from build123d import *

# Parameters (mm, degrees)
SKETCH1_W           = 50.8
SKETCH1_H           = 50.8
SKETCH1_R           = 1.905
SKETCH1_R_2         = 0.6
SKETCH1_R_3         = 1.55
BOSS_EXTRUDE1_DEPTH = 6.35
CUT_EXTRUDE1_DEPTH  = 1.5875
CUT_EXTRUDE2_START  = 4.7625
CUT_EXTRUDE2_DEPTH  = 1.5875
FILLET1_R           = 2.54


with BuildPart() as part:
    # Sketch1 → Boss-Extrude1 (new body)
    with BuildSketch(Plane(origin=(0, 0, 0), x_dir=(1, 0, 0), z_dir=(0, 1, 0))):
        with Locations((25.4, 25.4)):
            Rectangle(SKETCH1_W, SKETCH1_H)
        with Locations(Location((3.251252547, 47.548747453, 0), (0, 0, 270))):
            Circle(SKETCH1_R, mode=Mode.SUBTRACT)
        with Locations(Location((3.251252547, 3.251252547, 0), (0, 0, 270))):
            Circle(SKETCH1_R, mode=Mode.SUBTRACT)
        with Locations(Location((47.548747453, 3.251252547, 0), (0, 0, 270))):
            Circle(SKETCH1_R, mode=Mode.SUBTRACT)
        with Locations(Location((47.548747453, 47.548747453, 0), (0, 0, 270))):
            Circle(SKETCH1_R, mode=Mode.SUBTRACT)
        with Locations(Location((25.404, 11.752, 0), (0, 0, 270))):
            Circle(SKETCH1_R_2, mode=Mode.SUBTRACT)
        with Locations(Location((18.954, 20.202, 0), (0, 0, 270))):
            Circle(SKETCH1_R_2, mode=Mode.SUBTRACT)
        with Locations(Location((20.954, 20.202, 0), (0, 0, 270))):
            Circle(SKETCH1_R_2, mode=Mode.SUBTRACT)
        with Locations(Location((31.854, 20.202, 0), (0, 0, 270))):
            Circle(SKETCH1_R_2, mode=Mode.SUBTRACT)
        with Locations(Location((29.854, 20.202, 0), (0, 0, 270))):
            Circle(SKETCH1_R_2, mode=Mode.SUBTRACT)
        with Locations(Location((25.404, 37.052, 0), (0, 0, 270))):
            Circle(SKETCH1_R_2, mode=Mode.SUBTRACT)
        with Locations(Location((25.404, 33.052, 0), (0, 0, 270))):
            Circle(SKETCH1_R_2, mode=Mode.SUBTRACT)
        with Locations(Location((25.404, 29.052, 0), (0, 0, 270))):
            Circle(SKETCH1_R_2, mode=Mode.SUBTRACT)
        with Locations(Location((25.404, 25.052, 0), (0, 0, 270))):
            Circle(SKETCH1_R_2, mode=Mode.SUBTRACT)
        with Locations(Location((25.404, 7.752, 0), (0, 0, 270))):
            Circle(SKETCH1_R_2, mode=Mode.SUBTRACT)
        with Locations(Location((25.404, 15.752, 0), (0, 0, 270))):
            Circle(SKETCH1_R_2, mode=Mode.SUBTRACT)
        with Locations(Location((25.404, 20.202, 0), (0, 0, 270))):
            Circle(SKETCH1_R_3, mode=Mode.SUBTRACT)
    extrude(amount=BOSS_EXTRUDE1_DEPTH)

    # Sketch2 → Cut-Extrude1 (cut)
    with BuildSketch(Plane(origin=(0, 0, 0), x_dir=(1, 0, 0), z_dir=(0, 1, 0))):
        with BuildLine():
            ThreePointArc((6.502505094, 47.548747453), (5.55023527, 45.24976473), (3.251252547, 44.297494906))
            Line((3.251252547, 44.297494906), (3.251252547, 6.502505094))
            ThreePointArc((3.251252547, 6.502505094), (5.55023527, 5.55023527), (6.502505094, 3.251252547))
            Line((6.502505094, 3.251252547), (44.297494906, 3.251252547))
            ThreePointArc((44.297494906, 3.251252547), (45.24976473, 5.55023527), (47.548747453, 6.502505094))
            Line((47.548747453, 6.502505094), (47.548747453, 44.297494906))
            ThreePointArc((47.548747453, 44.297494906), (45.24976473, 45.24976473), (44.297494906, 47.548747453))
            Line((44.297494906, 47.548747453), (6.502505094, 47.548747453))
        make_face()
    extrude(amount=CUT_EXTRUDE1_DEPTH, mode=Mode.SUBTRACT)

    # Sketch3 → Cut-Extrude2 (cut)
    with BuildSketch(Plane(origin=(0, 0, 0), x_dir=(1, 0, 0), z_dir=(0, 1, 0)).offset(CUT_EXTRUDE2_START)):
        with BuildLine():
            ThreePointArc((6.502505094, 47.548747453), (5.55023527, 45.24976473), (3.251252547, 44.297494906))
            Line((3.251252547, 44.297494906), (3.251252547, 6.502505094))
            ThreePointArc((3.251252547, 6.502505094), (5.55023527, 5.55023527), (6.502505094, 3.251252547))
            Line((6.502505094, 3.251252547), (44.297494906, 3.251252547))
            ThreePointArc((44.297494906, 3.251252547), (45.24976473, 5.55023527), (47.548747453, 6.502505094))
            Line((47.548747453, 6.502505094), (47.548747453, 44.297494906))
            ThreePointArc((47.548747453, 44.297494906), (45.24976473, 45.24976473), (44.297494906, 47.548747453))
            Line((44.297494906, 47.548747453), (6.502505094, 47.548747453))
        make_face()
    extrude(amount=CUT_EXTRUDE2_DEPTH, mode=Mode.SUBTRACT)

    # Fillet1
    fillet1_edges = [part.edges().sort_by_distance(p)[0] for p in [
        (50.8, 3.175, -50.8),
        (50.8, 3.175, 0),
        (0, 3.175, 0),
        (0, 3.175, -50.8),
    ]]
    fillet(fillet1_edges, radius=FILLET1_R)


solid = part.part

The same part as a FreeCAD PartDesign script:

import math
import FreeCAD as App
import Part
import Sketcher
Q = App.Units.Quantity


def edges_at(feature, points):
    """Names of the edges that pass closest to the given points."""
    edges = feature.Shape.Edges
    near = lambda p: min(range(len(edges)), key=lambda i: edges[i].distToShape(Part.Vertex(*p))[0])
    return sorted({f"Edge{near(p) + 1}" for p in points})


def add_polygon(sketch, points):
    """Adds a closed chain of lines whose ends are joined by coincident constraints."""
    first, n = sketch.GeometryCount, len(points)
    for a, b in zip(points, points[1:] + points[:1]):
        sketch.addGeometry(Part.LineSegment(App.Vector(*a, 0), App.Vector(*b, 0)), False)
    for i in range(n):
        sketch.addConstraint(Sketcher.Constraint("Coincident", first + i, 2, first + (i + 1) % n, 1))

doc = App.newDocument("Part")
body = doc.addObject("PartDesign::Body", "Body")

# Sketch on XZ plane
sketch1 = doc.addObject("Sketcher::SketchObject", "Sketch")
body.addObject(sketch1)
sketch1.AttachmentSupport = (doc.XZ_Plane, [""])
sketch1.MapMode = "FlatFace"
add_polygon(sketch1, [(0, -50.8), (0, 0), (50.8, 0), (50.8, -50.8)])  # lines 0-3
sketch1.addGeometry(Part.Circle(App.Vector(3.3, -3.3, 0), App.Vector(0, 0, 1), 1.9), False)  # 4
sketch1.addGeometry(Part.Circle(App.Vector(19, -20.2, 0), App.Vector(0, 0, 1), 0.6), False)  # 5
sketch1.addGeometry(Part.Circle(App.Vector(21, -20.2, 0), App.Vector(0, 0, 1), 0.6), False)  # 6
sketch1.addGeometry(Part.Circle(App.Vector(25.4, -7.8, 0), App.Vector(0, 0, 1), 0.6), False)  # 7
sketch1.addGeometry(Part.Circle(App.Vector(25.4, -11.8, 0), App.Vector(0, 0, 1), 0.6), False)  # 8
sketch1.addGeometry(Part.Circle(App.Vector(47.5, -3.3, 0), App.Vector(0, 0, 1), 1.9), False)  # 9
sketch1.addGeometry(Part.Circle(App.Vector(25.4, -15.8, 0), App.Vector(0, 0, 1), 0.6), False)  # 10
sketch1.addGeometry(Part.Circle(App.Vector(25.4, -20.2, 0), App.Vector(0, 0, 1), 1.6), False)  # 11
sketch1.addGeometry(Part.Circle(App.Vector(29.9, -20.2, 0), App.Vector(0, 0, 1), 0.6), False)  # 12
sketch1.addGeometry(Part.Circle(App.Vector(25.4, -25.1, 0), App.Vector(0, 0, 1), 0.6), False)  # 13
sketch1.addGeometry(Part.Circle(App.Vector(31.9, -20.2, 0), App.Vector(0, 0, 1), 0.6), False)  # 14
sketch1.addGeometry(Part.Circle(App.Vector(3.3, -47.5, 0), App.Vector(0, 0, 1), 1.9), False)  # 15
sketch1.addGeometry(Part.Circle(App.Vector(25.4, -29.1, 0), App.Vector(0, 0, 1), 0.6), False)  # 16
sketch1.addGeometry(Part.Circle(App.Vector(25.4, -33.1, 0), App.Vector(0, 0, 1), 0.6), False)  # 17
sketch1.addGeometry(Part.Circle(App.Vector(25.4, -37.1, 0), App.Vector(0, 0, 1), 0.6), False)  # 18
sketch1.addGeometry(Part.Circle(App.Vector(47.5, -47.5, 0), App.Vector(0, 0, 1), 1.9), False)  # 19
sketch1.addConstraint(Sketcher.Constraint("Vertical", 0))
sketch1.addConstraint(Sketcher.Constraint("Horizontal", 1))
sketch1.addConstraint(Sketcher.Constraint("Vertical", 2))
sketch1.addConstraint(Sketcher.Constraint("Horizontal", 3))
sketch1.addConstraint(Sketcher.Constraint("Coincident", 0, 2, -1, 1))
sketch1.addConstraint(Sketcher.Constraint("Equal", 5, 6))
sketch1.addConstraint(Sketcher.Constraint("Equal", 6, 7))
sketch1.addConstraint(Sketcher.Constraint("Equal", 7, 8))
sketch1.addConstraint(Sketcher.Constraint("Equal", 4, 9))
sketch1.addConstraint(Sketcher.Constraint("Equal", 8, 10))
sketch1.addConstraint(Sketcher.Constraint("Equal", 10, 12))
sketch1.addConstraint(Sketcher.Constraint("Equal", 12, 13))
sketch1.addConstraint(Sketcher.Constraint("Equal", 13, 14))
sketch1.addConstraint(Sketcher.Constraint("Equal", 9, 15))
sketch1.addConstraint(Sketcher.Constraint("Equal", 14, 16))
sketch1.addConstraint(Sketcher.Constraint("Equal", 16, 17))
sketch1.addConstraint(Sketcher.Constraint("Equal", 17, 18))
sketch1.addConstraint(Sketcher.Constraint("Equal", 15, 19))
sketch1.addConstraint(Sketcher.Constraint("Horizontal", 5, 3, 6, 3))
sketch1.addConstraint(Sketcher.Constraint("Horizontal", 4, 3, 9, 3))
sketch1.addConstraint(Sketcher.Constraint("Horizontal", 6, 3, 11, 3))
sketch1.addConstraint(Sketcher.Constraint("Horizontal", 11, 3, 12, 3))
sketch1.addConstraint(Sketcher.Constraint("Horizontal", 12, 3, 14, 3))
sketch1.addConstraint(Sketcher.Constraint("Horizontal", 15, 3, 19, 3))
sketch1.addConstraint(Sketcher.Constraint("Vertical", 7, 3, 8, 3))
sketch1.addConstraint(Sketcher.Constraint("Vertical", 8, 3, 10, 3))
sketch1.addConstraint(Sketcher.Constraint("Vertical", 10, 3, 11, 3))
sketch1.addConstraint(Sketcher.Constraint("Vertical", 11, 3, 13, 3))
sketch1.addConstraint(Sketcher.Constraint("Vertical", 4, 3, 15, 3))
sketch1.addConstraint(Sketcher.Constraint("Vertical", 13, 3, 16, 3))
sketch1.addConstraint(Sketcher.Constraint("Vertical", 16, 3, 17, 3))
sketch1.addConstraint(Sketcher.Constraint("Vertical", 17, 3, 18, 3))
sketch1.addConstraint(Sketcher.Constraint("Vertical", 9, 3, 19, 3))
sketch1.addConstraint(Sketcher.Constraint("Equal", 3, 0))
sketch1.addConstraint(Sketcher.Constraint("Diameter", 4, Q("0.15 in")))
sketch1.addConstraint(Sketcher.Constraint("DistanceX", 1, 1, 1, 2, Q("2 in")))
sketch1.addConstraint(Sketcher.Constraint("Diameter", 5, 1.2))
sketch1.addConstraint(Sketcher.Constraint("Diameter", 11, 3.1))
sketch1.addConstraint(Sketcher.Constraint("DistanceX", -1, 1, 5, 3, 18.954))
sketch1.addConstraint(Sketcher.Constraint("DistanceY", 5, 3, -1, 1, 20.202))
sketch1.addConstraint(Sketcher.Constraint("DistanceX", -1, 1, 6, 3, 20.954))
sketch1.addConstraint(Sketcher.Constraint("DistanceX", -1, 1, 7, 3, 25.404))
sketch1.addConstraint(Sketcher.Constraint("DistanceY", 7, 3, -1, 1, 7.752))
sketch1.addConstraint(Sketcher.Constraint("DistanceY", 8, 3, -1, 1, 11.752))
sketch1.addConstraint(Sketcher.Constraint("DistanceY", 10, 3, -1, 1, 15.752))
sketch1.addConstraint(Sketcher.Constraint("DistanceX", -1, 1, 12, 3, 29.854))
sketch1.addConstraint(Sketcher.Constraint("DistanceY", 13, 3, -1, 1, 25.052))
sketch1.addConstraint(Sketcher.Constraint("DistanceX", -1, 1, 14, 3, 31.854))
sketch1.addConstraint(Sketcher.Constraint("DistanceY", 16, 3, -1, 1, 29.052))
sketch1.addConstraint(Sketcher.Constraint("DistanceY", 17, 3, -1, 1, 33.052))
sketch1.addConstraint(Sketcher.Constraint("DistanceY", 18, 3, -1, 1, 37.052))
sketch1.addConstraint(Sketcher.Constraint("DistanceX", -1, 1, 4, 3, 3.251253))
sketch1.addConstraint(Sketcher.Constraint("DistanceY", 4, 3, -1, 1, 3.251253))
sketch1.addConstraint(Sketcher.Constraint("DistanceX", -1, 1, 9, 3, 47.548747))
sketch1.addConstraint(Sketcher.Constraint("DistanceY", 15, 3, -1, 1, 47.548747))
pad1 = doc.addObject("PartDesign::Pad", "Pad")
body.addObject(pad1)
pad1.Profile = sketch1
pad1.Length = Q("0.25 in")
pad1.Reversed = True

# Sketch on XZ plane
sketch2 = doc.addObject("Sketcher::SketchObject", "Sketch001")
body.addObject(sketch2)
sketch2.AttachmentSupport = (doc.XZ_Plane, [""])
sketch2.MapMode = "FlatFace"
sketch2.addGeometry(Part.ArcOfCircle(Part.Circle(App.Vector(3.3, -47.5, 0), App.Vector(0, 0, 1), 3.3), math.radians(0), math.radians(90)), False)
sketch2.addGeometry(Part.LineSegment(App.Vector(3.3, -44.3, 0), App.Vector(3.3, -6.5, 0)), False)
sketch2.addGeometry(Part.ArcOfCircle(Part.Circle(App.Vector(3.3, -3.3, 0), App.Vector(0, 0, 1), 3.3), math.radians(-90), math.radians(0)), False)
sketch2.addGeometry(Part.LineSegment(App.Vector(6.5, -3.3, 0), App.Vector(44.3, -3.3, 0)), False)
sketch2.addGeometry(Part.ArcOfCircle(Part.Circle(App.Vector(47.5, -3.3, 0), App.Vector(0, 0, 1), 3.3), math.radians(-180), math.radians(-90)), False)
sketch2.addGeometry(Part.LineSegment(App.Vector(47.5, -6.5, 0), App.Vector(47.5, -44.3, 0)), False)
sketch2.addGeometry(Part.ArcOfCircle(Part.Circle(App.Vector(47.5, -47.5, 0), App.Vector(0, 0, 1), 3.3), math.radians(90), math.radians(180)), False)
sketch2.addGeometry(Part.LineSegment(App.Vector(44.3, -47.5, 0), App.Vector(6.5, -47.5, 0)), False)
sketch2.addConstraint(Sketcher.Constraint("Coincident", 0, 2, 1, 1))
sketch2.addConstraint(Sketcher.Constraint("Coincident", 1, 2, 2, 1))
sketch2.addConstraint(Sketcher.Constraint("Coincident", 2, 2, 3, 1))
sketch2.addConstraint(Sketcher.Constraint("Coincident", 3, 2, 4, 1))
sketch2.addConstraint(Sketcher.Constraint("Coincident", 4, 2, 5, 1))
sketch2.addConstraint(Sketcher.Constraint("Coincident", 5, 2, 6, 1))
sketch2.addConstraint(Sketcher.Constraint("Coincident", 6, 2, 7, 1))
sketch2.addConstraint(Sketcher.Constraint("Coincident", 7, 2, 0, 1))
sketch2.addConstraint(Sketcher.Constraint("Vertical", 1))
sketch2.addConstraint(Sketcher.Constraint("Horizontal", 3))
sketch2.addConstraint(Sketcher.Constraint("Vertical", 5))
sketch2.addConstraint(Sketcher.Constraint("Horizontal", 7))
sketch2.addConstraint(Sketcher.Constraint("Equal", 0, 2))
sketch2.addConstraint(Sketcher.Constraint("Equal", 2, 4))
sketch2.addConstraint(Sketcher.Constraint("Equal", 4, 6))
sketch2.addConstraint(Sketcher.Constraint("Horizontal", 2, 3, 4, 3))
sketch2.addConstraint(Sketcher.Constraint("Horizontal", 0, 3, 6, 3))
sketch2.addConstraint(Sketcher.Constraint("Horizontal", 4, 3, 2, 2))
sketch2.addConstraint(Sketcher.Constraint("Horizontal", 0, 3, 6, 2))
sketch2.addConstraint(Sketcher.Constraint("Vertical", 0, 3, 2, 3))
sketch2.addConstraint(Sketcher.Constraint("Vertical", 4, 3, 6, 3))
sketch2.addConstraint(Sketcher.Constraint("Vertical", 2, 3, 0, 2))
sketch2.addConstraint(Sketcher.Constraint("Vertical", 6, 3, 4, 2))
sketch2.addConstraint(Sketcher.Constraint("Equal", 7, 1))
sketch2.addConstraint(Sketcher.Constraint("Radius", 0, 3.251253))
sketch2.addConstraint(Sketcher.Constraint("DistanceX", 3, 1, 3, 2, 37.79499))
sketch2.addConstraint(Sketcher.Constraint("DistanceX", -1, 1, 0, 3, 3.251253))
sketch2.addConstraint(Sketcher.Constraint("DistanceY", 0, 3, -1, 1, 47.548747))
pocket1 = doc.addObject("PartDesign::Pocket", "Pocket")
body.addObject(pocket1)
pocket1.Profile = sketch2
pocket1.Length = Q("0.0625 in")

# Sketch on XZ plane
sketch3 = doc.addObject("Sketcher::SketchObject", "Sketch002")
body.addObject(sketch3)
sketch3.AttachmentSupport = (doc.XZ_Plane, [""])
sketch3.MapMode = "FlatFace"
sketch3.AttachmentOffset = App.Placement(App.Vector(0, 0, -0.1875 * 25.4), App.Rotation())
sketch3.addGeometry(Part.ArcOfCircle(Part.Circle(App.Vector(3.3, -47.5, 0), App.Vector(0, 0, 1), 3.3), math.radians(0), math.radians(90)), False)
sketch3.addGeometry(Part.LineSegment(App.Vector(3.3, -44.3, 0), App.Vector(3.3, -6.5, 0)), False)
sketch3.addGeometry(Part.ArcOfCircle(Part.Circle(App.Vector(3.3, -3.3, 0), App.Vector(0, 0, 1), 3.3), math.radians(-90), math.radians(0)), False)
sketch3.addGeometry(Part.LineSegment(App.Vector(6.5, -3.3, 0), App.Vector(44.3, -3.3, 0)), False)
sketch3.addGeometry(Part.ArcOfCircle(Part.Circle(App.Vector(47.5, -3.3, 0), App.Vector(0, 0, 1), 3.3), math.radians(-180), math.radians(-90)), False)
sketch3.addGeometry(Part.LineSegment(App.Vector(47.5, -6.5, 0), App.Vector(47.5, -44.3, 0)), False)
sketch3.addGeometry(Part.ArcOfCircle(Part.Circle(App.Vector(47.5, -47.5, 0), App.Vector(0, 0, 1), 3.3), math.radians(90), math.radians(180)), False)
sketch3.addGeometry(Part.LineSegment(App.Vector(44.3, -47.5, 0), App.Vector(6.5, -47.5, 0)), False)
sketch3.addConstraint(Sketcher.Constraint("Coincident", 0, 2, 1, 1))
sketch3.addConstraint(Sketcher.Constraint("Coincident", 1, 2, 2, 1))
sketch3.addConstraint(Sketcher.Constraint("Coincident", 2, 2, 3, 1))
sketch3.addConstraint(Sketcher.Constraint("Coincident", 3, 2, 4, 1))
sketch3.addConstraint(Sketcher.Constraint("Coincident", 4, 2, 5, 1))
sketch3.addConstraint(Sketcher.Constraint("Coincident", 5, 2, 6, 1))
sketch3.addConstraint(Sketcher.Constraint("Coincident", 6, 2, 7, 1))
sketch3.addConstraint(Sketcher.Constraint("Coincident", 7, 2, 0, 1))
sketch3.addConstraint(Sketcher.Constraint("Vertical", 1))
sketch3.addConstraint(Sketcher.Constraint("Horizontal", 3))
sketch3.addConstraint(Sketcher.Constraint("Vertical", 5))
sketch3.addConstraint(Sketcher.Constraint("Horizontal", 7))
sketch3.addConstraint(Sketcher.Constraint("Equal", 0, 2))
sketch3.addConstraint(Sketcher.Constraint("Equal", 2, 4))
sketch3.addConstraint(Sketcher.Constraint("Equal", 4, 6))
sketch3.addConstraint(Sketcher.Constraint("Horizontal", 2, 3, 4, 3))
sketch3.addConstraint(Sketcher.Constraint("Horizontal", 0, 3, 6, 3))
sketch3.addConstraint(Sketcher.Constraint("Horizontal", 4, 3, 2, 2))
sketch3.addConstraint(Sketcher.Constraint("Horizontal", 0, 3, 6, 2))
sketch3.addConstraint(Sketcher.Constraint("Vertical", 0, 3, 2, 3))
sketch3.addConstraint(Sketcher.Constraint("Vertical", 4, 3, 6, 3))
sketch3.addConstraint(Sketcher.Constraint("Vertical", 2, 3, 0, 2))
sketch3.addConstraint(Sketcher.Constraint("Vertical", 6, 3, 4, 2))
sketch3.addConstraint(Sketcher.Constraint("Equal", 7, 1))
sketch3.addConstraint(Sketcher.Constraint("Radius", 0, 3.251253))
sketch3.addConstraint(Sketcher.Constraint("DistanceX", 3, 1, 3, 2, 37.79499))
sketch3.addConstraint(Sketcher.Constraint("DistanceX", -1, 1, 0, 3, 3.251253))
sketch3.addConstraint(Sketcher.Constraint("DistanceY", 0, 3, -1, 1, 47.548747))
pocket2 = doc.addObject("PartDesign::Pocket", "Pocket001")
body.addObject(pocket2)
pocket2.Profile = sketch3
pocket2.Length = Q("0.0625 in")
doc.recompute()

fillet = doc.addObject("PartDesign::Fillet", "Fillet")
body.addObject(fillet)
fillet.Base = (pocket2, edges_at(pocket2, [
    (50.8, 3.175, -50.8),
    (50.8, 3.175, 0),
    (0, 3.175, 0),
    (0, 3.175, -50.8),
]))
fillet.Radius = Q("0.1 in")

doc.recompute()
